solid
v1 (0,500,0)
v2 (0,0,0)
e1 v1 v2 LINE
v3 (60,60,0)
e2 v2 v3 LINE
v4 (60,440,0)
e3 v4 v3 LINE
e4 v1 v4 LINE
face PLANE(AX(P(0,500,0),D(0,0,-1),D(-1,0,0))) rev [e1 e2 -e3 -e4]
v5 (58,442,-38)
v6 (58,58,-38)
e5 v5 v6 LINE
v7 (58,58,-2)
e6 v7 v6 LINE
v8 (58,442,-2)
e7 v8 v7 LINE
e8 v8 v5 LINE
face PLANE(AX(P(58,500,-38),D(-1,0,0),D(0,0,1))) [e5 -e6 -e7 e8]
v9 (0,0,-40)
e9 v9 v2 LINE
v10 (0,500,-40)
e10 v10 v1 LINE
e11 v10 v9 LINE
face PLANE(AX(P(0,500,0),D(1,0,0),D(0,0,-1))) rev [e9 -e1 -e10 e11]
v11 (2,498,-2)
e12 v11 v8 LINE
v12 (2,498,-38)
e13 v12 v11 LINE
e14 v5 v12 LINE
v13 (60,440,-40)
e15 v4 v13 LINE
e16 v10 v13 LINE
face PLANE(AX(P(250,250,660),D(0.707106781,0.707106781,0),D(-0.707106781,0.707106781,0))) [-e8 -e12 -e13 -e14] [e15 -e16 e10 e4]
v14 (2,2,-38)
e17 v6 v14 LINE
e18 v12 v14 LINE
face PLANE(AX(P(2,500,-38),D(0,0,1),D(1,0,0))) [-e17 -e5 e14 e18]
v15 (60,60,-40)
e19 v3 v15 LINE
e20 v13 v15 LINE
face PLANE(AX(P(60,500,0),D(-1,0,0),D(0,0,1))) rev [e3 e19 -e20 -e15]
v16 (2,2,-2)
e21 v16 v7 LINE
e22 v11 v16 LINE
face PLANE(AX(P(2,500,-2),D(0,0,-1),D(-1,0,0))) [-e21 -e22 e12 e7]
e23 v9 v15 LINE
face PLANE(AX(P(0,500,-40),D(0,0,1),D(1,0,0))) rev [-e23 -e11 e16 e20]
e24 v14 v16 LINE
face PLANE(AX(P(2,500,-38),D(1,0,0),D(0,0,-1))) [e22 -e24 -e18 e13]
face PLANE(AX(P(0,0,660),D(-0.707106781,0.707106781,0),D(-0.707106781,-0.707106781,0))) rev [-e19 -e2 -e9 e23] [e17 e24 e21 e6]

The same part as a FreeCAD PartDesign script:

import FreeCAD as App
import Part
import Sketcher

V = App.Vector
Q = App.Units.Quantity

doc = App.newDocument("Part")
body = doc.addObject("PartDesign::Body", "Body")

sketch1 = doc.addObject("Sketcher::SketchObject", "Sketch")
body.addObject(sketch1)
sketch1.AttachmentSupport = (doc.XZ_Plane, [""])
sketch1.MapMode = "FlatFace"
sketch1.addGeometry([
    Part.LineSegment(V(0, -40, 0), V(0, 0, 0)),
    Part.LineSegment(V(0, 0, 0), V(60, 0, 0)),
    Part.LineSegment(V(60, 0, 0), V(60, -40, 0)),
    Part.LineSegment(V(60, -40, 0), V(0, -40, 0)),
    Part.LineSegment(V(58, -2, 0), V(2, -2, 0)),
    Part.LineSegment(V(2, -2, 0), V(2, -38, 0)),
    Part.LineSegment(V(2, -38, 0), V(58, -38, 0)),
    Part.LineSegment(V(58, -38, 0), V(58, -2, 0)),
], False)
sketch1.addConstraint([
    Sketcher.Constraint("Coincident", 0, 2, 1, 1),
    Sketcher.Constraint("Coincident", 1, 2, 2, 1),
    Sketcher.Constraint("Coincident", 2, 2, 3, 1),
    Sketcher.Constraint("Coincident", 3, 2, 0, 1),
    Sketcher.Constraint("Coincident", 4, 2, 5, 1),
    Sketcher.Constraint("Coincident", 5, 2, 6, 1),
    Sketcher.Constraint("Coincident", 6, 2, 7, 1),
    Sketcher.Constraint("Coincident", 7, 2, 4, 1),
    Sketcher.Constraint("Vertical", 0),
    Sketcher.Constraint("Horizontal", 1),
    Sketcher.Constraint("Vertical", 2),
    Sketcher.Constraint("Horizontal", 3),
    Sketcher.Constraint("Horizontal", 4),
    Sketcher.Constraint("Vertical", 5),
    Sketcher.Constraint("Horizontal", 6),
    Sketcher.Constraint("Vertical", 7),
    Sketcher.Constraint("Coincident", 0, 2, -1, 1),
    Sketcher.Constraint("DistanceX", 1, 1, 1, 2, Q("60 mm")),
    Sketcher.Constraint("DistanceX", 4, 2, 4, 1, Q("56 mm")),
    Sketcher.Constraint("DistanceY", 0, 1, 0, 2, Q("40 mm")),
    Sketcher.Constraint("DistanceY", 5, 2, 5, 1, Q("36 mm")),
    Sketcher.Constraint("DistanceX", -1, 1, 4, 2, Q("2 mm")),
    Sketcher.Constraint("DistanceY", 4, 2, -1, 1, Q("2 mm")),
])
pad1 = doc.addObject("PartDesign::Pad", "Pad")
body.addObject(pad1)
pad1.Profile = sketch1
pad1.Length = 500
pad1.Reversed = True

sketch2 = doc.addObject("Sketcher::SketchObject", "Sketch001")
body.addObject(sketch2)
sketch2.AttachmentSupport = (doc.XY_Plane, [""])
sketch2.MapMode = "FlatFace"
sketch2.AttachmentOffset = App.Placement(V(0, 0, -40), App.Rotation())
sketch2.addGeometry([
    Part.LineSegment(V(60, 440, 0), V(0, 500, 0)),
    Part.LineSegment(V(0, 500, 0), V(60, 500, 0)),
    Part.LineSegment(V(60, 500, 0), V(60, 440, 0)),
    Part.LineSegment(V(60, 0, 0), V(0, 0, 0)),
    Part.LineSegment(V(0, 0, 0), V(60, 60, 0)),
    Part.LineSegment(V(60, 60, 0), V(60, 0, 0)),
], False)
sketch2.addConstraint([
    Sketcher.Constraint("Coincident", 0, 2, 1, 1),
    Sketcher.Constraint("Coincident", 1, 2, 2, 1),
    Sketcher.Constraint("Coincident", 2, 2, 0, 1),
    Sketcher.Constraint("Coincident", 3, 2, 4, 1),
    Sketcher.Constraint("Coincident", 4, 2, 5, 1),
    Sketcher.Constraint("Coincident", 5, 2, 3, 1),
    Sketcher.Constraint("Horizontal", 1),
    Sketcher.Constraint("Vertical", 2),
    Sketcher.Constraint("Horizontal", 3),
    Sketcher.Constraint("Vertical", 5),
    Sketcher.Constraint("Coincident", 3, 2, -1, 1),
    Sketcher.Constraint("PointOnObject", 0, 2, -2),
    Sketcher.Constraint("Perpendicular", 0, 4),
    Sketcher.Constraint("Vertical", 2, 2, 4, 2),
    Sketcher.Constraint("Equal", 3, 2),
    Sketcher.Constraint("DistanceX", 1, 1, 1, 2, Q("60 mm")),
    Sketcher.Constraint("DistanceY", -1, 1, 0, 2, Q("500 mm")),
])
pocket1 = doc.addObject("PartDesign::Pocket", "Pocket")
body.addObject(pocket1)
pocket1.Profile = sketch2
pocket1.Length = 700
pocket1.Reversed = True

doc.recompute()
